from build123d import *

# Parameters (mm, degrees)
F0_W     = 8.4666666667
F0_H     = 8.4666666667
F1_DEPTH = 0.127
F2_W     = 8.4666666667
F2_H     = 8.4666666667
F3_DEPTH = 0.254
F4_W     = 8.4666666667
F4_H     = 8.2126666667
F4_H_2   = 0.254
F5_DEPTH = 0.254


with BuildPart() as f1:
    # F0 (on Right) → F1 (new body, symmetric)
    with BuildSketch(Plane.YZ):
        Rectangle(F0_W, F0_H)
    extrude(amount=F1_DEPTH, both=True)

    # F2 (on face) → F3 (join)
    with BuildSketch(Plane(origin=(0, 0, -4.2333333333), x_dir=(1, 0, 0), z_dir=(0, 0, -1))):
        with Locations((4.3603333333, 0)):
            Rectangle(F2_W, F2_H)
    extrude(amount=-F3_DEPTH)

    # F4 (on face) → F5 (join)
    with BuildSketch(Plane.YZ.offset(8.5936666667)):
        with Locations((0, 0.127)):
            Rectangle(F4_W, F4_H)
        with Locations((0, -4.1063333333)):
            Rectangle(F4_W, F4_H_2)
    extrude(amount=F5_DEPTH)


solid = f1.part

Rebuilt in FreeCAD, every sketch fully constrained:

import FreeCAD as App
import Part
import Sketcher
from FreeCAD import Vector
Q = App.Units.Quantity

doc = App.newDocument("Part")
body = doc.addObject("PartDesign::Body", "Body")

sketch1 = body.newObject("Sketcher::SketchObject", "Sketch")
sketch1.AttachmentSupport = (doc.getObject("YZ_Plane"), [""])
sketch1.MapMode = "FlatFace"
sketch1.addGeometry([
    Part.LineSegment(Vector(-4, 4, 0), Vector(-4, -4, 0)),
    Part.LineSegment(Vector(-4, -4, 0), Vector(4, -4, 0)),
    Part.LineSegment(Vector(4, -4, 0), Vector(4, 4, 0)),
    Part.LineSegment(Vector(4, 4, 0), Vector(-4, 4, 0)),
], False)
sketch1.addConstraint([
    Sketcher.Constraint("Coincident", 0, 2, 1, 1),
    Sketcher.Constraint("Coincident", 1, 2, 2, 1),
    Sketcher.Constraint("Coincident", 2, 2, 3, 1),
    Sketcher.Constraint("Coincident", 3, 2, 0, 1),
    Sketcher.Constraint("Vertical", 0),
    Sketcher.Constraint("Horizontal", 1),
    Sketcher.Constraint("Vertical", 2),
    Sketcher.Constraint("Horizontal", 3),
    Sketcher.Constraint("Symmetric", 0, 2, 2, 2, -1, 1),
    Sketcher.Constraint("Equal", 3, 0),
    Sketcher.Constraint("DistanceX", 1, 1, 1, 2, 8.466667),
])
pad1 = body.newObject("PartDesign::Pad", "Pad")
pad1.Profile = sketch1
pad1.Length = Q("0.01 in")
pad1.Midplane = True

sketch2 = body.newObject("Sketcher::SketchObject", "Sketch001")
sketch2.AttachmentSupport = (doc.getObject("XY_Plane"), [""])
sketch2.MapMode = "FlatFace"
sketch2.AttachmentOffset = App.Placement(Vector(0, 0, -4.233333), App.Rotation())
sketch2.addGeometry([
    Part.LineSegment(Vector(0, -4, 0), Vector(0, 4, 0)),
    Part.LineSegment(Vector(0, 4, 0), Vector(9, 4, 0)),
    Part.LineSegment(Vector(9, 4, 0), Vector(9, -4, 0)),
    Part.LineSegment(Vector(9, -4, 0), Vector(0, -4, 0)),
], False)
sketch2.addConstraint([
    Sketcher.Constraint("Coincident", 0, 2, 1, 1),
    Sketcher.Constraint("Coincident", 1, 2, 2, 1),
    Sketcher.Constraint("Coincident", 2, 2, 3, 1),
    Sketcher.Constraint("Coincident", 3, 2, 0, 1),
    Sketcher.Constraint("Vertical", 0),
    Sketcher.Constraint("Horizontal", 1),
    Sketcher.Constraint("Vertical", 2),
    Sketcher.Constraint("Horizontal", 3),
    Sketcher.Constraint("Equal", 3, 0),
    Sketcher.Constraint("DistanceX", -1, 1, 0, 2, Q("0.005 in")),
    Sketcher.Constraint("DistanceX", 1, 1, 1, 2, 8.466667),
    Sketcher.Constraint("DistanceY", -1, 1, 0, 2, 4.233333),
])
pad2 = body.newObject("PartDesign::Pad", "Pad001")
pad2.Profile = sketch2
pad2.Length = Q("0.01 in")

sketch3 = body.newObject("Sketcher::SketchObject", "Sketch002")
sketch3.AttachmentSupport = (doc.getObject("YZ_Plane"), [""])
sketch3.MapMode = "FlatFace"
sketch3.AttachmentOffset = App.Placement(Vector(0, 0, 8.593667), App.Rotation())
sketch3.addGeometry([
    Part.LineSegment(Vector(-4, 4, 0), Vector(-4, -4, 0)),
    Part.LineSegment(Vector(-4, -4, 0), Vector(4, -4, 0)),
    Part.LineSegment(Vector(4, -4, 0), Vector(4, 4, 0)),
    Part.LineSegment(Vector(4, 4, 0), Vector(-4, 4, 0)),
], False)
sketch3.addConstraint([
    Sketcher.Constraint("Coincident", 0, 2, 1, 1),
    Sketcher.Constraint("Coincident", 1, 2, 2, 1),
    Sketcher.Constraint("Coincident", 2, 2, 3, 1),
    Sketcher.Constraint("Coincident", 3, 2, 0, 1),
    Sketcher.Constraint("Vertical", 0),
    Sketcher.Constraint("Horizontal", 1),
    Sketcher.Constraint("Vertical", 2),
    Sketcher.Constraint("Horizontal", 3),
    Sketcher.Constraint("Symmetric", 0, 2, 2, 2, -1, 1),
    Sketcher.Constraint("Equal", 3, 0),
    Sketcher.Constraint("DistanceX", 1, 1, 1, 2, 8.466667),
])
pad3 = body.newObject("PartDesign::Pad", "Pad002")
pad3.Profile = sketch3
pad3.Length = Q("0.01 in")

doc.recompute()
